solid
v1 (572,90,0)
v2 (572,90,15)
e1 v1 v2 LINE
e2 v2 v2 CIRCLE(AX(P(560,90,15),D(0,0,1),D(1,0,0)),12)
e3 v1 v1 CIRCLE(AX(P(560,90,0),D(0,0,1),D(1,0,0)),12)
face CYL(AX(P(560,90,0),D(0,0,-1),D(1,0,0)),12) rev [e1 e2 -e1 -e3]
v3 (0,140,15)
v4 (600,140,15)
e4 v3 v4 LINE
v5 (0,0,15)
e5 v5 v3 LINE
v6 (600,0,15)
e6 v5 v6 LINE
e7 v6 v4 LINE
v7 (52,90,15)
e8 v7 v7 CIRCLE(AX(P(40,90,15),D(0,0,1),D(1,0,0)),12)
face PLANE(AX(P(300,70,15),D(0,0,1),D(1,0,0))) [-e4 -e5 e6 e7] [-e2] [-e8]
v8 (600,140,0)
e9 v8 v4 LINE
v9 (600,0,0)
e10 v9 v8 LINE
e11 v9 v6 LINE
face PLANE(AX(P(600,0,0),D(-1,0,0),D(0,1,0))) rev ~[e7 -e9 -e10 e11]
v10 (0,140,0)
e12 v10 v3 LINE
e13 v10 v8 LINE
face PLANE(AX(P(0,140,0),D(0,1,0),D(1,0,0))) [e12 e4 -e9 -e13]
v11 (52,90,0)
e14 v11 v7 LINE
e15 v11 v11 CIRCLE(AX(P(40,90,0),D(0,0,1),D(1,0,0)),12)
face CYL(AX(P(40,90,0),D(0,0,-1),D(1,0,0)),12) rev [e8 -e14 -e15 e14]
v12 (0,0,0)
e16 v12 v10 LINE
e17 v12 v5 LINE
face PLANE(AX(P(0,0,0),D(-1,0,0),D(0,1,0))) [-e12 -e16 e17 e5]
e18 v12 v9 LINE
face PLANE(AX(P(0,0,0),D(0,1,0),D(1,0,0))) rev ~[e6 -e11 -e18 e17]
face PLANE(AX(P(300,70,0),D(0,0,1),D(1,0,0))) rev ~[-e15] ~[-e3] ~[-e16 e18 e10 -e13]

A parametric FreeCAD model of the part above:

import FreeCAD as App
import Part
import Sketcher
Q = App.Units.Quantity


def add_polygon(sketch, points):
    """Adds a closed chain of lines whose ends are joined by coincident constraints."""
    first, n = sketch.GeometryCount, len(points)
    for a, b in zip(points, points[1:] + points[:1]):
        sketch.addGeometry(Part.LineSegment(App.Vector(*a, 0), App.Vector(*b, 0)), False)
    for i in range(n):
        sketch.addConstraint(Sketcher.Constraint("Coincident", first + i, 2, first + (i + 1) % n, 1))

doc = App.newDocument("Part")
body = doc.addObject("PartDesign::Body", "Body")

sketch1 = body.newObject("Sketcher::SketchObject", "Sketch")
sketch1.AttachmentSupport = (doc.getObject("XY_Plane"), [""])
sketch1.MapMode = "FlatFace"
add_polygon(sketch1, [(0, 140), (0, 0), (600, 0), (600, 140)])
sketch1.addGeometry(Part.Circle(App.Vector(40, 90, 0), App.Vector(0, 0, 1), 12), False)
sketch1.addGeometry(Part.Circle(App.Vector(560, 90, 0), App.Vector(0, 0, 1), 12), False)
sketch1.addConstraint([
    Sketcher.Constraint("Vertical", 0),
    Sketcher.Constraint("Horizontal", 1),
    Sketcher.Constraint("Vertical", 2),
    Sketcher.Constraint("Horizontal", 3),
    Sketcher.Constraint("Coincident", 0, 2, -1, 1),
    Sketcher.Constraint("Equal", 4, 5),
    Sketcher.Constraint("Horizontal", 4, 3, 5, 3),
    Sketcher.Constraint("Diameter", 4, Q("24 mm")),
    Sketcher.Constraint("DistanceX", 1, 1, 1, 2, Q("600 mm")),
    Sketcher.Constraint("DistanceY", 0, 2, 0, 1, Q("140 mm")),
    Sketcher.Constraint("DistanceX", -1, 1, 4, 3, Q("40 mm")),
    Sketcher.Constraint("DistanceY", -1, 1, 4, 3, Q("90 mm")),
    Sketcher.Constraint("DistanceX", -1, 1, 5, 3, Q("560 mm")),
])
pad1 = body.newObject("PartDesign::Pad", "Pad")
pad1.Profile = sketch1
pad1.Length = 15

doc.recompute()
